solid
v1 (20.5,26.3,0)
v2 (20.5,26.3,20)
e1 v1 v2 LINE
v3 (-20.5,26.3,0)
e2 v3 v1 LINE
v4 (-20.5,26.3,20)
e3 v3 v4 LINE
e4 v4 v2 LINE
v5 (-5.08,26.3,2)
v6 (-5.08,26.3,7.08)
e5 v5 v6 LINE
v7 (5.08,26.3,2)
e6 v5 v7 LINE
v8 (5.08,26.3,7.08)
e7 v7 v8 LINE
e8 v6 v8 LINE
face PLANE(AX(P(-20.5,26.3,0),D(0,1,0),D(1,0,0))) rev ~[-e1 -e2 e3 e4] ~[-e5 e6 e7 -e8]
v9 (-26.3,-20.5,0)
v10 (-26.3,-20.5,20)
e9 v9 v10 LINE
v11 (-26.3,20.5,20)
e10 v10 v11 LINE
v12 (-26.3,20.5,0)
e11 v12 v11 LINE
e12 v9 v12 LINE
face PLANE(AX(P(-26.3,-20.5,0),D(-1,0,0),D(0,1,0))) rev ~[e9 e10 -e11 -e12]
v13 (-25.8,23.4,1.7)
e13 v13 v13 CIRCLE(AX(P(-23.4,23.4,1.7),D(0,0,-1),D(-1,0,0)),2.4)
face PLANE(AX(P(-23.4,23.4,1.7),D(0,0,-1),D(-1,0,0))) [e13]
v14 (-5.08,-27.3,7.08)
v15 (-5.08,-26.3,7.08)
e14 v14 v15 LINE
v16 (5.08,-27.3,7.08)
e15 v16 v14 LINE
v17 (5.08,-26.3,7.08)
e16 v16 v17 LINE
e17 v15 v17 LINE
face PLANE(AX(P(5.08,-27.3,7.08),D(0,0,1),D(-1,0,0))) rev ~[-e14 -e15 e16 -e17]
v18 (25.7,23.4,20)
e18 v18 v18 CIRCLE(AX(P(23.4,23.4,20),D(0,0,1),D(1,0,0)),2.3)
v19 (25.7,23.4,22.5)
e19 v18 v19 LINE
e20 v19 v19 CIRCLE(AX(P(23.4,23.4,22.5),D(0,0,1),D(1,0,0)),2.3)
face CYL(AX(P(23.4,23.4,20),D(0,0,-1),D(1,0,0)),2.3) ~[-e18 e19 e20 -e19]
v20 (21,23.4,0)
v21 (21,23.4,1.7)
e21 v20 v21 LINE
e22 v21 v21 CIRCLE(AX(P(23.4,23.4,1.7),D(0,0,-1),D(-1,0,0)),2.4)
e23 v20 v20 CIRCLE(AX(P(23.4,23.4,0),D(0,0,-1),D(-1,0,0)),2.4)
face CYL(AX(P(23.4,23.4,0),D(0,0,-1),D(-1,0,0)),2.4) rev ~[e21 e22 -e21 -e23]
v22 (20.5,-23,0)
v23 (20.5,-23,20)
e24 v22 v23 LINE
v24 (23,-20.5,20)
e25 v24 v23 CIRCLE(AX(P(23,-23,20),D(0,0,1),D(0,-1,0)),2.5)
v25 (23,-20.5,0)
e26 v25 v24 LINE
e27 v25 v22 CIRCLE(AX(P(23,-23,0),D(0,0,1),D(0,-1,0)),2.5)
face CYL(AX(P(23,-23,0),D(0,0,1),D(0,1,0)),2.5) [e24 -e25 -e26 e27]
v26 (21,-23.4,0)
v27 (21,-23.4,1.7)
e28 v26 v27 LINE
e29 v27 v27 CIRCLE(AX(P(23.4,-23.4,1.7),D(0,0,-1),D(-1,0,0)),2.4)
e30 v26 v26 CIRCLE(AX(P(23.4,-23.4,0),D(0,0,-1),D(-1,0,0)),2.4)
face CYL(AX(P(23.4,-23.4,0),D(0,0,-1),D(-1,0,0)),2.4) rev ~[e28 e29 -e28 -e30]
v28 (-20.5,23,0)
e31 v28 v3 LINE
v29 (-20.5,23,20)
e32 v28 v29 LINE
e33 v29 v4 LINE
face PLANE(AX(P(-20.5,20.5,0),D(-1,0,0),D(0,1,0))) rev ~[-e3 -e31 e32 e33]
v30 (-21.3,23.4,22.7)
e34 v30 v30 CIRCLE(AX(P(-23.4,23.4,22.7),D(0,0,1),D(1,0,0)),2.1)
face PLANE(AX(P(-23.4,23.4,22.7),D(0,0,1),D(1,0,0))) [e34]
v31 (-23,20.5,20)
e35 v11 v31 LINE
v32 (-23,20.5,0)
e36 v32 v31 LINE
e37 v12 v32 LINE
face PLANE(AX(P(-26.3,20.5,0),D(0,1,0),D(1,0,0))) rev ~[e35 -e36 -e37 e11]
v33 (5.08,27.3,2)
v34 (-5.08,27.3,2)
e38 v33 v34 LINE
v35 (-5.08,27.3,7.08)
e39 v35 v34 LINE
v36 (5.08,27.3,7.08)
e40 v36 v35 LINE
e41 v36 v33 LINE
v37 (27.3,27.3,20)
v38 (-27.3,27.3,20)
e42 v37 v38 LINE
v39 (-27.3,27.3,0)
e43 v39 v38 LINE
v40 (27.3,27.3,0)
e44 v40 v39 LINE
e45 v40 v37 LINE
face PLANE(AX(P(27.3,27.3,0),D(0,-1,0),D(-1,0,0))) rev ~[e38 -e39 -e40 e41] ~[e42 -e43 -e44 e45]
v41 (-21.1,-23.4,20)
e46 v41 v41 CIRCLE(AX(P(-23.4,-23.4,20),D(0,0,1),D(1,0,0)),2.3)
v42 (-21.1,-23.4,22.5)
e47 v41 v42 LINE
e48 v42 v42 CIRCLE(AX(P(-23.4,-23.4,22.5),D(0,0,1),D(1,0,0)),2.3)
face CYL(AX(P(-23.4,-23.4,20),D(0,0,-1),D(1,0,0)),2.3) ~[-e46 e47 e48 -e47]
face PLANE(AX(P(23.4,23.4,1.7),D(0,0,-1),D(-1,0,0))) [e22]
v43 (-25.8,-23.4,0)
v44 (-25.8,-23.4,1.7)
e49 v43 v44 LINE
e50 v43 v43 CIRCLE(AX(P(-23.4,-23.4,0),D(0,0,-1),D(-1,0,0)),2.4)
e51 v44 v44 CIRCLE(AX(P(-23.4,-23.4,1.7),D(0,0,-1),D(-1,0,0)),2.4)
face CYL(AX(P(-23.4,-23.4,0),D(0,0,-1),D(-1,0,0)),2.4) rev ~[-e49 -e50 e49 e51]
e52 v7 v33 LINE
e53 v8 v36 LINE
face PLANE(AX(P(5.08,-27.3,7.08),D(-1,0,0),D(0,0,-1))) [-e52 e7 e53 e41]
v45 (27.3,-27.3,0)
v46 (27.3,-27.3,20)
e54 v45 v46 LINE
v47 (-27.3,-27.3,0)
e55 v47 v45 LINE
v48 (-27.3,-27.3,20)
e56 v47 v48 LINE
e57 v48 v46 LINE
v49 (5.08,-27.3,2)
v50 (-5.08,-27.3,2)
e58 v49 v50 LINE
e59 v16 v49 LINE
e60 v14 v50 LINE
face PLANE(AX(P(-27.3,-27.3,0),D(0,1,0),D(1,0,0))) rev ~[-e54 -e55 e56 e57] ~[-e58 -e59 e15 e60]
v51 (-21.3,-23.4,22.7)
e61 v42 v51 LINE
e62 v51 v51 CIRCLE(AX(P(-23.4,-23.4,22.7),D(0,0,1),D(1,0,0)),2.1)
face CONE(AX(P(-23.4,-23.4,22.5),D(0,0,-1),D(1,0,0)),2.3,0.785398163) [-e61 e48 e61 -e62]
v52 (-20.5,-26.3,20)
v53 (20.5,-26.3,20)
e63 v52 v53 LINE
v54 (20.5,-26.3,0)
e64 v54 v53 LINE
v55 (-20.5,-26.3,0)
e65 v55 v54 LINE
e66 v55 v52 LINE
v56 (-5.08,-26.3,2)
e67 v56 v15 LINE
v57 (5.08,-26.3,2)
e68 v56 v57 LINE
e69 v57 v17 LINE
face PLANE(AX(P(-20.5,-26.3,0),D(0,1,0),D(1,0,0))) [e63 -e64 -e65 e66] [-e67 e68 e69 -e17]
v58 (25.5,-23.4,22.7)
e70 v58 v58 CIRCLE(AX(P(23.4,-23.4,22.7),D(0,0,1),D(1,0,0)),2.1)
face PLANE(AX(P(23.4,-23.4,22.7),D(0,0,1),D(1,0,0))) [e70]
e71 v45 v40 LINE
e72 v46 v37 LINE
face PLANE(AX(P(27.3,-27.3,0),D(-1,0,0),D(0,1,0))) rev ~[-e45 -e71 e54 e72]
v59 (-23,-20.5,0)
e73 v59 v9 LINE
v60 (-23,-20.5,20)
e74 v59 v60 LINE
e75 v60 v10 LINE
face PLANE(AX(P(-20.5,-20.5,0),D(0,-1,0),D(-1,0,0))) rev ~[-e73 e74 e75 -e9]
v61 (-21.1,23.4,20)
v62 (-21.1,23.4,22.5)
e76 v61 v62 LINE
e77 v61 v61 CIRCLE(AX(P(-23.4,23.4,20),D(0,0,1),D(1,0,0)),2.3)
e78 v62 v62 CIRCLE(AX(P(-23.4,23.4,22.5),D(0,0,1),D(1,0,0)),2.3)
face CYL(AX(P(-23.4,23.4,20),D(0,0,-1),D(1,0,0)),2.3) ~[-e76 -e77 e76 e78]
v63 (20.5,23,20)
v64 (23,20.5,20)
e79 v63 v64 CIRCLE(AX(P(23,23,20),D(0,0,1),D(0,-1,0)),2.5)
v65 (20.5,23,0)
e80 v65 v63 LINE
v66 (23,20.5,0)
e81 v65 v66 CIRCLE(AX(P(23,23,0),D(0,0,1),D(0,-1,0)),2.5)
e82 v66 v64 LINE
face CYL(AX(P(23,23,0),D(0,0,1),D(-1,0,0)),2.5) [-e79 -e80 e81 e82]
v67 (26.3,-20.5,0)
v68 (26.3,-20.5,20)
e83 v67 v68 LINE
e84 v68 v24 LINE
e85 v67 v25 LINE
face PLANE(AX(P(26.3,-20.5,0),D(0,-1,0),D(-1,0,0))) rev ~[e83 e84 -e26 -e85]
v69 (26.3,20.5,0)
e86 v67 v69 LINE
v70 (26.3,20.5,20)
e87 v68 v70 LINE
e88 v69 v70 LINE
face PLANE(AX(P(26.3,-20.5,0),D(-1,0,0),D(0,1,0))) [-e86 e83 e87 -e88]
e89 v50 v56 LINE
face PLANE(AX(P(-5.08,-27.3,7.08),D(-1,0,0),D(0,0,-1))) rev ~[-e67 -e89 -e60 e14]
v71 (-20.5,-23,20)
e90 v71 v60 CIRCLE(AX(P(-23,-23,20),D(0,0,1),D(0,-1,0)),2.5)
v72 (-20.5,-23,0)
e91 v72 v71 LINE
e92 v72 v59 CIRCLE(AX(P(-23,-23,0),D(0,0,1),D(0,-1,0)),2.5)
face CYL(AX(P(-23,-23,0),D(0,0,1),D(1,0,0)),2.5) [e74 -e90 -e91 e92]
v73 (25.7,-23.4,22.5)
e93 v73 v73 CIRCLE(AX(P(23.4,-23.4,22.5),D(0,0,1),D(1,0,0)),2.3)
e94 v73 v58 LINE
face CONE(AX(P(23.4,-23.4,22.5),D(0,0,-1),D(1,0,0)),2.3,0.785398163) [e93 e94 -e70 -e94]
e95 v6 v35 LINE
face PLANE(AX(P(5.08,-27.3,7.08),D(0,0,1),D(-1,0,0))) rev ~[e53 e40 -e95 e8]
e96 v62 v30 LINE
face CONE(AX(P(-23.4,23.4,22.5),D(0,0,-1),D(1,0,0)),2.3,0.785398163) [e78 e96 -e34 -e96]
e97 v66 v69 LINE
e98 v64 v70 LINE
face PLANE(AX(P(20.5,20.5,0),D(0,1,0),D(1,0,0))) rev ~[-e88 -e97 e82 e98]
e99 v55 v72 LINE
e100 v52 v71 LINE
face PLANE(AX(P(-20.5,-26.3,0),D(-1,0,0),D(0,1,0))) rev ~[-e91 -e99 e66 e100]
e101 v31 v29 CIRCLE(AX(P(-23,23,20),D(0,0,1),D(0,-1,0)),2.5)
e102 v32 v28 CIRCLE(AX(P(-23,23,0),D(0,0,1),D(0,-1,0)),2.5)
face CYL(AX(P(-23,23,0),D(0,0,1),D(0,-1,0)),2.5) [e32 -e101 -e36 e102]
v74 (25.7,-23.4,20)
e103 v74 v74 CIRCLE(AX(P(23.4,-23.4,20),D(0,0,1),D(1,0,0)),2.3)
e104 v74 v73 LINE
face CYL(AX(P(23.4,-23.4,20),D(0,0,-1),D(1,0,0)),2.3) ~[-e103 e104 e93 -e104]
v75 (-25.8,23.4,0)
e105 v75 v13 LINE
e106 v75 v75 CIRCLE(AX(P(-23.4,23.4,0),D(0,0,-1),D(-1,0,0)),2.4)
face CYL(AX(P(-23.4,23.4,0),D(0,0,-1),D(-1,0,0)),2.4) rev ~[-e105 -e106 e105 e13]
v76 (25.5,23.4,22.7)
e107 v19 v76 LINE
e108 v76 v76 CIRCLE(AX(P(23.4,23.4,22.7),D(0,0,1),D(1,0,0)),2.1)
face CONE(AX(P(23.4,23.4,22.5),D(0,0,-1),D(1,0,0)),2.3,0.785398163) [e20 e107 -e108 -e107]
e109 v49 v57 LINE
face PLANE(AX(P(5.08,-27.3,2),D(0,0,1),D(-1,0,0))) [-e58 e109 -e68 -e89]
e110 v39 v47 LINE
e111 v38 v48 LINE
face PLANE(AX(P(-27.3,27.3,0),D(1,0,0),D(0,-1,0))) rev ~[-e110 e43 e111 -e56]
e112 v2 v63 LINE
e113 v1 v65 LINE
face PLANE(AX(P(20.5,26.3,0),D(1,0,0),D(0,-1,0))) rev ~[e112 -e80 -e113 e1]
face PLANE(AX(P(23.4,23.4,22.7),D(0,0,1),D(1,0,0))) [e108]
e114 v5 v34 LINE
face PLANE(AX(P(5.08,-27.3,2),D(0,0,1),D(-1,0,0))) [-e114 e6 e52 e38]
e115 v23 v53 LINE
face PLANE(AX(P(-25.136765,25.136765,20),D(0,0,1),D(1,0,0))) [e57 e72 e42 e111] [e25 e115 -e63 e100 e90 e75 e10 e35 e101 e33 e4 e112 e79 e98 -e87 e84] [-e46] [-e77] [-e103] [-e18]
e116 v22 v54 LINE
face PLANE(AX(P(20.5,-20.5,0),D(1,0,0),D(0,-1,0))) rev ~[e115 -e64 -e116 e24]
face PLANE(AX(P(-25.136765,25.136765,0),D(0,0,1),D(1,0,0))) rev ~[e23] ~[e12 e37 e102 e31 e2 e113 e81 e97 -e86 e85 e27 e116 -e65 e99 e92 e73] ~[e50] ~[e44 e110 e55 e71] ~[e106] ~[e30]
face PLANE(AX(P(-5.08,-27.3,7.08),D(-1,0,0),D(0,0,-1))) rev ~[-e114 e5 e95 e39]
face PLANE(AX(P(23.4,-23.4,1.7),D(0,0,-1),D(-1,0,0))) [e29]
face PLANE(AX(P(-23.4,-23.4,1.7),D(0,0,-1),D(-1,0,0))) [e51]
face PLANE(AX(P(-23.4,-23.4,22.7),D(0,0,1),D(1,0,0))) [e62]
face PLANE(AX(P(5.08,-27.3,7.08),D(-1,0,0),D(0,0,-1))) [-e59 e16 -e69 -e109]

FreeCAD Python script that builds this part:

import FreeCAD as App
import Part
import Sketcher


def edges_at(feature, points):
    """Names of the edges that pass closest to the given points."""
    edges = feature.Shape.Edges
    near = lambda p: min(range(len(edges)), key=lambda i: edges[i].distToShape(Part.Vertex(*p))[0])
    return sorted({f"Edge{near(p) + 1}" for p in points})


def add_polygon(sketch, points):
    """Adds a closed chain of lines whose ends are joined by coincident constraints."""
    first, n = sketch.GeometryCount, len(points)
    for a, b in zip(points, points[1:] + points[:1]):
        sketch.addGeometry(Part.LineSegment(App.Vector(*a, 0), App.Vector(*b, 0)), False)
    for i in range(n):
        sketch.addConstraint(Sketcher.Constraint("Coincident", first + i, 2, first + (i + 1) % n, 1))

doc = App.newDocument("Part")
body = doc.addObject("PartDesign::Body", "Body")

# Sketch on XY plane
sketch1 = doc.addObject("Sketcher::SketchObject", "Sketch")
body.addObject(sketch1)
sketch1.AttachmentSupport = (doc.XY_Plane, [""])
sketch1.MapMode = "FlatFace"
add_polygon(sketch1, [(-27, 27), (-27, -27), (27, -27), (27, 27)])  # lines 0-3
add_polygon(sketch1, [(20, 26), (20, 20), (26, 20), (26, -20), (20, -20), (20, -26), (-20, -26), (-20, -20), (-26, -20), (-26, 20), (-20, 20), (-20, 26)])  # lines 4-15
sketch1.addConstraint(Sketcher.Constraint("Vertical", 0))
sketch1.addConstraint(Sketcher.Constraint("Horizontal", 1))
sketch1.addConstraint(Sketcher.Constraint("Vertical", 2))
sketch1.addConstraint(Sketcher.Constraint("Horizontal", 3))
sketch1.addConstraint(Sketcher.Constraint("Vertical", 4))
sketch1.addConstraint(Sketcher.Constraint("Horizontal", 5))
sketch1.addConstraint(Sketcher.Constraint("Vertical", 6))
sketch1.addConstraint(Sketcher.Constraint("Horizontal", 7))
sketch1.addConstraint(Sketcher.Constraint("Vertical", 8))
sketch1.addConstraint(Sketcher.Constraint("Horizontal", 9))
sketch1.addConstraint(Sketcher.Constraint("Vertical", 10))
sketch1.addConstraint(Sketcher.Constraint("Horizontal", 11))
sketch1.addConstraint(Sketcher.Constraint("Vertical", 12))
sketch1.addConstraint(Sketcher.Constraint("Horizontal", 13))
sketch1.addConstraint(Sketcher.Constraint("Vertical", 14))
sketch1.addConstraint(Sketcher.Constraint("Horizontal", 15))
sketch1.addConstraint(Sketcher.Constraint("Symmetric", 0, 2, 2, 2, -1, 1))
sketch1.addConstraint(Sketcher.Constraint("Symmetric", 4, 2, 10, 2, -1, 1))
sketch1.addConstraint(Sketcher.Constraint("Symmetric", 6, 2, 12, 2, -1, 1))
sketch1.addConstraint(Sketcher.Constraint("Symmetric", 8, 2, 14, 2, -1, 1))
sketch1.addConstraint(Sketcher.Constraint("Symmetric", 7, 2, 10, 2, -2))
sketch1.addConstraint(Sketcher.Constraint("Equal", 3, 0))
sketch1.addConstraint(Sketcher.Constraint("Equal", 13, 4))
sketch1.addConstraint(Sketcher.Constraint("Equal", 15, 6))
sketch1.addConstraint(Sketcher.Constraint("DistanceX", 9, 2, 9, 1, 41.0))
sketch1.addConstraint(Sketcher.Constraint("DistanceX", 1, 1, 1, 2, 54.6))
sketch1.addConstraint(Sketcher.Constraint("DistanceX", 5, 1, 5, 2, 5.8))
pad1 = doc.addObject("PartDesign::Pad", "Pad")
body.addObject(pad1)
pad1.Profile = sketch1
pad1.Length = 20
doc.recompute()

fillet = doc.addObject("PartDesign::Fillet", "Fillet")
body.addObject(fillet)
fillet.Base = (pad1, edges_at(pad1, [
    (20.5, -20.5, 10),
    (20.5, 20.5, 10),
    (-20.5, 20.5, 10),
    (-20.5, -20.5, 10),
]))
fillet.Radius = 2.5

# Sketch on XY plane
sketch2 = doc.addObject("Sketcher::SketchObject", "Sketch001")
body.addObject(sketch2)
sketch2.AttachmentSupport = (doc.XY_Plane, [""])
sketch2.MapMode = "FlatFace"
sketch2.addGeometry(Part.Circle(App.Vector(23.4, 23.4, 0), App.Vector(0, 0, 1), 2.4), False)
sketch2.addGeometry(Part.Circle(App.Vector(-23.4, 23.4, 0), App.Vector(0, 0, 1), 2.4), False)
sketch2.addGeometry(Part.Circle(App.Vector(-23.4, -23.4, 0), App.Vector(0, 0, 1), 2.4), False)
sketch2.addGeometry(Part.Circle(App.Vector(23.4, -23.4, 0), App.Vector(0, 0, 1), 2.4), False)
sketch2.addConstraint(Sketcher.Constraint("Equal", 0, 1))
sketch2.addConstraint(Sketcher.Constraint("Equal", 1, 2))
sketch2.addConstraint(Sketcher.Constraint("Equal", 2, 3))
sketch2.addConstraint(Sketcher.Constraint("Symmetric", 0, 3, 2, 3, -1, 1))
sketch2.addConstraint(Sketcher.Constraint("Symmetric", 1, 3, 3, 3, -1, 1))
sketch2.addConstraint(Sketcher.Constraint("Symmetric", 0, 3, 1, 3, -2))
sketch2.addConstraint(Sketcher.Constraint("Diameter", 0, 4.8))
sketch2.addConstraint(Sketcher.Constraint("DistanceX", -1, 1, 0, 3, 23.4))
sketch2.addConstraint(Sketcher.Constraint("DistanceY", -1, 1, 0, 3, 23.4))
pocket1 = doc.addObject("PartDesign::Pocket", "Pocket")
body.addObject(pocket1)
pocket1.Profile = sketch2
pocket1.Length = 1.7
pocket1.Reversed = True

# Sketch on XY plane
sketch3 = doc.addObject("Sketcher::SketchObject", "Sketch002")
body.addObject(sketch3)
sketch3.AttachmentSupport = (doc.XY_Plane, [""])
sketch3.MapMode = "FlatFace"
sketch3.AttachmentOffset = App.Placement(App.Vector(0, 0, 20), App.Rotation())
sketch3.addGeometry(Part.Circle(App.Vector(-23.4, 23.4, 0), App.Vector(0, 0, 1), 2.3), False)
sketch3.addGeometry(Part.Circle(App.Vector(23.4, 23.4, 0), App.Vector(0, 0, 1), 2.3), False)
sketch3.addGeometry(Part.Circle(App.Vector(23.4, -23.4, 0), App.Vector(0, 0, 1), 2.3), False)
sketch3.addGeometry(Part.Circle(App.Vector(-23.4, -23.4, 0), App.Vector(0, 0, 1), 2.3), False)
sketch3.addConstraint(Sketcher.Constraint("Equal", 0, 1))
sketch3.addConstraint(Sketcher.Constraint("Equal", 1, 2))
sketch3.addConstraint(Sketcher.Constraint("Equal", 2, 3))
sketch3.addConstraint(Sketcher.Constraint("Symmetric", 0, 3, 2, 3, -1, 1))
sketch3.addConstraint(Sketcher.Constraint("Symmetric", 1, 3, 3, 3, -1, 1))
sketch3.addConstraint(Sketcher.Constraint("Symmetric", 0, 3, 1, 3, -2))
sketch3.addConstraint(Sketcher.Constraint("Diameter", 0, 4.6))
sketch3.addConstraint(Sketcher.Constraint("DistanceX", 0, 3, -1, 1, 23.4))
sketch3.addConstraint(Sketcher.Constraint("DistanceY", -1, 1, 0, 3, 23.4))
pad2 = doc.addObject("PartDesign::Pad", "Pad001")
body.addObject(pad2)
pad2.Profile = sketch3
pad2.Length = 2.7
doc.recompute()

chamfer = doc.addObject("PartDesign::Chamfer", "Chamfer")
body.addObject(chamfer)
chamfer.Base = (pad2, edges_at(pad2, [
    (-25.7, 23.4, 22.7),
    (21.1, 23.4, 22.7),
    (21.1, -23.4, 22.7),
    (-25.7, -23.4, 22.7),
]))
chamfer.Size = 0.2

# Sketch on XZ plane
sketch4 = doc.addObject("Sketcher::SketchObject", "Sketch003")
body.addObject(sketch4)
sketch4.AttachmentSupport = (doc.XZ_Plane, [""])
sketch4.MapMode = "FlatFace"
sketch4.AttachmentOffset = App.Placement(App.Vector(0, 0, 27.3), App.Rotation())
add_polygon(sketch4, [(5, 2), (5, 7), (-5, 7), (-5, 2)])  # lines 0-3
sketch4.addConstraint(Sketcher.Constraint("Vertical", 0))
sketch4.addConstraint(Sketcher.Constraint("Horizontal", 1))
sketch4.addConstraint(Sketcher.Constraint("Vertical", 2))
sketch4.addConstraint(Sketcher.Constraint("Horizontal", 3))
sketch4.addConstraint(Sketcher.Constraint("DistanceY", -1, 1, 2, 2, 2.0))
sketch4.addConstraint(Sketcher.Constraint("DistanceX", 1, 2, 1, 1, 10.16))
sketch4.addConstraint(Sketcher.Constraint("DistanceY", 0, 1, 0, 2, 5.08))
sketch4.addConstraint(Sketcher.Constraint("DistanceX", -1, 1, 0, 2, 5.08))
pocket2 = doc.addObject("PartDesign::Pocket", "Pocket001")
body.addObject(pocket2)
pocket2.Profile = sketch4
pocket2.Length = 68.7

doc.recompute()
